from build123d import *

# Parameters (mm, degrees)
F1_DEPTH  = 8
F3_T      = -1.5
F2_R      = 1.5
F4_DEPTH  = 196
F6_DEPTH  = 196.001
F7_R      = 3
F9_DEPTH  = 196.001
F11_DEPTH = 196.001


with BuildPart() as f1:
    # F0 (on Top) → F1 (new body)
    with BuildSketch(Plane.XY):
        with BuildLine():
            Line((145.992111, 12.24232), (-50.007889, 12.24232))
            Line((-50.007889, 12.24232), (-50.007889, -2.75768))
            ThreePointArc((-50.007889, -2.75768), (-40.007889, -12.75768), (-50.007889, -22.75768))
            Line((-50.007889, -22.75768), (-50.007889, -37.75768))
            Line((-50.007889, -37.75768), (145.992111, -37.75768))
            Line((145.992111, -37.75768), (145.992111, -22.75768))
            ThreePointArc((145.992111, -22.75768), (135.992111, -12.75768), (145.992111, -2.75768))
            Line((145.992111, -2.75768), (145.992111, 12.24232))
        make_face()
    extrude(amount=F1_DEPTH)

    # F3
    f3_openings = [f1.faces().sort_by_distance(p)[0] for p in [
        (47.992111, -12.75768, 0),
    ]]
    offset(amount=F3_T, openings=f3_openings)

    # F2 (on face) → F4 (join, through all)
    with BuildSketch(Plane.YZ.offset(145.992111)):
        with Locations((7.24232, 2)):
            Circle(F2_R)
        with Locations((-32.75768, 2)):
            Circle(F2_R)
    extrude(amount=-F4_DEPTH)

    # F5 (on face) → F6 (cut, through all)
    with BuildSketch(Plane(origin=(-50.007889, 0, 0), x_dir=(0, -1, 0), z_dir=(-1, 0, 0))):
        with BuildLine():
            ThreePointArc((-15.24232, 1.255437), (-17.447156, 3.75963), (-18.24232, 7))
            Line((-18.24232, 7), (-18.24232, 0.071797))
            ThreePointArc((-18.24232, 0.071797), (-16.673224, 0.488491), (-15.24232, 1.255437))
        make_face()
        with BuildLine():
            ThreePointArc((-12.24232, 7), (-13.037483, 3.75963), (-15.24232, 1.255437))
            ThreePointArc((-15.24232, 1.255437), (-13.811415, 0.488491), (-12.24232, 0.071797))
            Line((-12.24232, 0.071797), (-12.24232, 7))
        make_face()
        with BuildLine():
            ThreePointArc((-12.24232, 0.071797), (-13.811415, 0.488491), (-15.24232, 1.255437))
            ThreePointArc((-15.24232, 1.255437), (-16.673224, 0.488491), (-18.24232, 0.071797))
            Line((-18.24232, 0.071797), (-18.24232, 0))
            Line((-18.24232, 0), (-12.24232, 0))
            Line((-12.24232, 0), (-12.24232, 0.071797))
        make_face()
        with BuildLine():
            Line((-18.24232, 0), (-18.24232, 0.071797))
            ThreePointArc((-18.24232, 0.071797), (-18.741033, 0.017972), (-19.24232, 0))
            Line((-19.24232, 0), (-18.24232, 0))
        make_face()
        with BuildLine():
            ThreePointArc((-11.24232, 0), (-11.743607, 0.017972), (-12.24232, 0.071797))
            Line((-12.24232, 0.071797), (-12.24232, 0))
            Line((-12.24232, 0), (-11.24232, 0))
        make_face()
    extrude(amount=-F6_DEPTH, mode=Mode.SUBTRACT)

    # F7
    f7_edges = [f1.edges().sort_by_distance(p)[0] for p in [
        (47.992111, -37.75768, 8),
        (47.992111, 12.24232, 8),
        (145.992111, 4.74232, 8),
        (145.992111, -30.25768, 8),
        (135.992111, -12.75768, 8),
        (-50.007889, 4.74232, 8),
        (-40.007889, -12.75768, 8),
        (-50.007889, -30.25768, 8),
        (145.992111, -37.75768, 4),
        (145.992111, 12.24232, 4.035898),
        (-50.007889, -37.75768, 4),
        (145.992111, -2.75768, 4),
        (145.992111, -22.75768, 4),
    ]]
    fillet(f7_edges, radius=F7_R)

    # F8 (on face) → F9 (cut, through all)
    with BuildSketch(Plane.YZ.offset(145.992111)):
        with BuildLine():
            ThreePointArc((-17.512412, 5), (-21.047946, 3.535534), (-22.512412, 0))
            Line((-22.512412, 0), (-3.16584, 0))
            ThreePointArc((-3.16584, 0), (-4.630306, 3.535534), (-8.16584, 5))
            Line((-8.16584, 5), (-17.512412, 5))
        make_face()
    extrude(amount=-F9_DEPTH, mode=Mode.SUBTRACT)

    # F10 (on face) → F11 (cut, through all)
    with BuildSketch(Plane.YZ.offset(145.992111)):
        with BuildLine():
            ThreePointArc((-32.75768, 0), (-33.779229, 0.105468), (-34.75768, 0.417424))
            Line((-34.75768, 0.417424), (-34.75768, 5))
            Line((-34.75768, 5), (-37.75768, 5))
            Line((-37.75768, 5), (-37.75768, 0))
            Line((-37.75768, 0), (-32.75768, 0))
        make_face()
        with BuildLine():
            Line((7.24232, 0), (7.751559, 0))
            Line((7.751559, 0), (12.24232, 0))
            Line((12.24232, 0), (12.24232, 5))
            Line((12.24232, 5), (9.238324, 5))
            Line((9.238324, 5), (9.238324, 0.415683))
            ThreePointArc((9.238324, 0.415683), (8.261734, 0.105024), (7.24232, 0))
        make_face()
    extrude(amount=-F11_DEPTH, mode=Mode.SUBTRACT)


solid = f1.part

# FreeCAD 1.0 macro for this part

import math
import FreeCAD as App
import Part
import Sketcher
from FreeCAD import Vector
Q = App.Units.Quantity


def edges_at(feature, points):
    """Names of the edges that pass closest to the given points."""
    edges = feature.Shape.Edges
    near = lambda p: min(range(len(edges)), key=lambda i: edges[i].distToShape(Part.Vertex(*p))[0])
    return sorted({f"Edge{near(p) + 1}" for p in points})


def faces_at(feature, points):
    """Names of the faces that lie closest to the given points."""
    faces = feature.Shape.Faces
    near = lambda p: min(range(len(faces)), key=lambda i: faces[i].distToShape(Part.Vertex(*p))[0])
    return sorted({f"Face{near(p) + 1}" for p in points})

doc = App.newDocument("Part")
params = doc.addObject("Spreadsheet::Sheet", "Params")
for row, (alias, value) in enumerate([
    ("sketch1_radius", "10 mm"),
    ("sketch1_width", "196 mm"),
    ("sketch1_height", "15 mm"),
    ("pad1_length", "8 mm"),
    ("thickness_wall", "1.5 mm"),
    ("sketch2_diameter", "3 mm"),
    ("pad2_length", "196 mm"),
    ("sketch3_radius", "7.000001 mm"),
    ("sketch3_width", "8 mm"),
    ("fillet_radius", "3 mm"),
    ("sketch4_radius", "5 mm"),
    ("sketch5_width", "3 mm"),
    ("sketch5_width2", "5 mm"),
], start=1):
    params.set(f"A{row}", alias)
    params.set(f"B{row}", "=" + value)
    params.setAlias(f"B{row}", alias)

body = doc.addObject("PartDesign::Body", "Body")

# Sketch on XY plane
sketch1 = body.newObject("Sketcher::SketchObject", "Sketch")
sketch1.AttachmentSupport = (doc.getObject("XY_Plane"), [""])
sketch1.MapMode = "FlatFace"
sketch1.addGeometry([
    Part.LineSegment(Vector(146, 12, 0), Vector(-50, 12, 0)),  # 0
    Part.LineSegment(Vector(-50, 12, 0), Vector(-50, -3, 0)),  # 1
    Part.ArcOfCircle(Part.Circle(Vector(-50, -13, 0), Vector(0, 0, 1), 10), math.radians(-90), math.radians(90)),  # 2
    Part.LineSegment(Vector(-50, -23, 0), Vector(-50, -38, 0)),  # 3
    Part.LineSegment(Vector(-50, -38, 0), Vector(146, -38, 0)),  # 4
    Part.LineSegment(Vector(146, -38, 0), Vector(146, -23, 0)),  # 5
    Part.ArcOfCircle(Part.Circle(Vector(146, -13, 0), Vector(0, 0, 1), 10), math.radians(90), math.radians(270)),  # 6
    Part.LineSegment(Vector(146, -3, 0), Vector(146, 12, 0)),  # 7
], False)
sketch1.addConstraint([
    Sketcher.Constraint("Coincident", 0, 2, 1, 1),
    Sketcher.Constraint("Coincident", 1, 2, 2, 2),
    Sketcher.Constraint("Coincident", 2, 1, 3, 1),
    Sketcher.Constraint("Coincident", 3, 2, 4, 1),
    Sketcher.Constraint("Coincident", 4, 2, 5, 1),
    Sketcher.Constraint("Coincident", 5, 2, 6, 2),
    Sketcher.Constraint("Coincident", 6, 1, 7, 1),
    Sketcher.Constraint("Coincident", 7, 2, 0, 1),
    Sketcher.Constraint("Horizontal", 0),
    Sketcher.Constraint("Vertical", 1),
    Sketcher.Constraint("Vertical", 3),
    Sketcher.Constraint("Horizontal", 4),
    Sketcher.Constraint("Vertical", 5),
    Sketcher.Constraint("Vertical", 7),
    Sketcher.Constraint("Equal", 2, 6),
    Sketcher.Constraint("Horizontal", 2, 3, 6, 3),
    Sketcher.Constraint("Vertical", 2, 3, 0, 2),
    Sketcher.Constraint("Vertical", 1, 2, 2, 1),
    Sketcher.Constraint("Vertical", 6, 3, 4, 2),
    Sketcher.Constraint("Vertical", 5, 2, 6, 1),
    Sketcher.Constraint("Equal", 1, 3),
    Sketcher.Constraint("Radius", 2, Q("10 mm")),
    Sketcher.Constraint("DistanceX", 0, 2, 0, 1, Q("196 mm")),
    Sketcher.Constraint("DistanceY", 1, 2, 1, 1, Q("15 mm")),
    Sketcher.Constraint("DistanceX", 2, 3, -1, 1, Q("50.007889 mm")),
    Sketcher.Constraint("DistanceY", 2, 3, -1, 1, Q("12.75768 mm")),
])
sketch1.setExpression("Constraints[21]", "Params.sketch1_radius")
sketch1.setExpression("Constraints[22]", "Params.sketch1_width")
sketch1.setExpression("Constraints[23]", "Params.sketch1_height")
pad1 = body.newObject("PartDesign::Pad", "Pad")
pad1.Profile = sketch1
pad1.setExpression("Length", "Params.pad1_length")
doc.recompute()

thickness = body.newObject("PartDesign::Thickness", "Thickness")
thickness.Base = (pad1, faces_at(pad1, [(47.992, -12.758, 0)]))
thickness.setExpression("Value", "Params.thickness_wall")
thickness.Reversed = True
thickness.Join = "Arc"

# Sketch on YZ plane
sketch2 = body.newObject("Sketcher::SketchObject", "Sketch001")
sketch2.AttachmentSupport = (doc.getObject("YZ_Plane"), [""])
sketch2.MapMode = "FlatFace"
sketch2.AttachmentOffset = App.Placement(Vector(0, 0, 145.992111), App.Rotation())
sketch2.addGeometry([
    Part.Circle(Vector(7.2, 2, 0), Vector(0, 0, 1), 1.5),
    Part.Circle(Vector(-32.8, 2, 0), Vector(0, 0, 1), 1.5),
], False)
sketch2.addConstraint([
    Sketcher.Constraint("Equal", 0, 1),
    Sketcher.Constraint("Horizontal", 0, 3, 1, 3),
    Sketcher.Constraint("Diameter", 0, Q("3 mm")),
    Sketcher.Constraint("DistanceY", -1, 1, 0, 3, Q("2 mm")),
    Sketcher.Constraint("DistanceX", 1, 3, 0, 3, Q("40 mm")),
    Sketcher.Constraint("DistanceX", -1, 1, 0, 3, Q("7.24232 mm")),
])
sketch2.setExpression("Constraints[2]", "Params.sketch2_diameter")
pad2 = body.newObject("PartDesign::Pad", "Pad001")
pad2.Profile = sketch2
pad2.setExpression("Length", "Params.pad2_length")
pad2.Reversed = True

# Sketch on YZ plane
sketch3 = body.newObject("Sketcher::SketchObject", "Sketch002")
sketch3.AttachmentSupport = (doc.getObject("YZ_Plane"), [""])
sketch3.MapMode = "FlatFace"
sketch3.AttachmentOffset = App.Placement(Vector(0, 0, -50.007889), App.Rotation())
sketch3.addGeometry([
    Part.ArcOfCircle(Part.Circle(Vector(11.2, 7, 0), Vector(0, 0, 1), 7), math.radians(-55), math.radians(0)),  # 0
    Part.LineSegment(Vector(18.2, 7, 0), Vector(18.2, 0.1, 0)),  # 1
    Part.ArcOfCircle(Part.Circle(Vector(19.2, 7, 0), Vector(0, 0, 1), 7), math.radians(-98.21), math.radians(-90)),  # 2
    Part.LineSegment(Vector(19.2, 0, 0), Vector(11.2, 0, 0)),  # 3
    Part.ArcOfCircle(Part.Circle(Vector(11.2, 7, 0), Vector(0, 0, 1), 7), math.radians(-90), math.radians(-81.79)),  # 4
    Part.LineSegment(Vector(12.2, 0.1, 0), Vector(12.2, 7, 0)),  # 5
    Part.ArcOfCircle(Part.Circle(Vector(19.2, 7, 0), Vector(0, 0, 1), 7), math.radians(-180), math.radians(-125)),  # 6
], False)
sketch3.addConstraint([
    Sketcher.Constraint("Tangent", 0, 2, 1, 1),
    Sketcher.Constraint("Coincident", 1, 2, 2, 1),
    Sketcher.Constraint("Tangent", 2, 2, 3, 1),
    Sketcher.Constraint("Tangent", 3, 2, 4, 1),
    Sketcher.Constraint("Coincident", 4, 2, 5, 1),
    Sketcher.Constraint("Tangent", 5, 2, 6, 1),
    Sketcher.Constraint("Coincident", 6, 2, 0, 1),
    Sketcher.Constraint("Vertical", 1),
    Sketcher.Constraint("Horizontal", 3),
    Sketcher.Constraint("Vertical", 5),
    Sketcher.Constraint("Equal", 2, 4),
    Sketcher.Constraint("PointOnObject", 2, 2, -1),
    Sketcher.Constraint("Horizontal", 6, 3, 0, 2),
    Sketcher.Constraint("Horizontal", 1, 2, 4, 2),
    Sketcher.Constraint("Vertical", 6, 3, 2, 2),
    Sketcher.Constraint("Radius", 6, Q("7.000001 mm")),
    Sketcher.Constraint("DistanceX", 3, 2, 3, 1, Q("8 mm")),
    Sketcher.Constraint("DistanceY", -1, 1, 6, 3, Q("7 mm")),
    Sketcher.Constraint("DistanceX", 0, 3, 2, 3, Q("7.999999 mm")),
    Sketcher.Constraint("Radius", 2, Q("6.999854 mm")),
    Sketcher.Constraint("DistanceX", -1, 1, 0, 3, Q("11.242312 mm")),
])
sketch3.setExpression("Constraints[15]", "Params.sketch3_radius")
sketch3.setExpression("Constraints[16]", "Params.sketch3_width")
pocket1 = body.newObject("PartDesign::Pocket", "Pocket")
pocket1.Profile = sketch3
pocket1.Type = "ThroughAll"
pocket1.Reversed = True
doc.recompute()

fillet = body.newObject("PartDesign::Fillet", "Fillet")
fillet.Base = (pocket1, edges_at(pocket1, [
    (47.992, -37.758, 8),
    (47.992, 12.242, 8),
    (145.992, 4.742, 8),
    (145.992, -30.258, 8),
    (135.992, -12.758, 8),
    (-50.008, 4.742, 8),
    (-40.008, -12.758, 8),
    (-50.008, -30.258, 8),
    (145.992, -37.758, 4),
    (145.992, 12.242, 4.036),
    (-50.008, -37.758, 4),
    (145.992, -2.758, 4),
    (145.992, -22.758, 4),
]))
fillet.setExpression("Radius", "Params.fillet_radius")

# Sketch on YZ plane
sketch4 = body.newObject("Sketcher::SketchObject", "Sketch003")
sketch4.AttachmentSupport = (doc.getObject("YZ_Plane"), [""])
sketch4.MapMode = "FlatFace"
sketch4.AttachmentOffset = App.Placement(Vector(0, 0, 145.992111), App.Rotation())
sketch4.addGeometry([
    Part.ArcOfCircle(Part.Circle(Vector(-17.5, 0, 0), Vector(0, 0, 1), 5), math.radians(90), math.radians(180)),
    Part.LineSegment(Vector(-22.5, 0, 0), Vector(-3.2, 0, 0)),
    Part.ArcOfCircle(Part.Circle(Vector(-8.2, 0, 0), Vector(0, 0, 1), 5), math.radians(0), math.radians(90)),
    Part.LineSegment(Vector(-8.2, 5, 0), Vector(-17.5, 5, 0)),
], False)
sketch4.addConstraint([
    Sketcher.Constraint("Coincident", 0, 2, 1, 1),
    Sketcher.Constraint("Coincident", 1, 2, 2, 1),
    Sketcher.Constraint("Tangent", 2, 2, 3, 1),
    Sketcher.Constraint("Tangent", 3, 2, 0, 1),
    Sketcher.Constraint("Horizontal", 1),
    Sketcher.Constraint("Horizontal", 3),
    Sketcher.Constraint("Equal", 0, 2),
    Sketcher.Constraint("PointOnObject", 0, 3, -1),
    Sketcher.Constraint("PointOnObject", 0, 2, -1),
    Sketcher.Constraint("Radius", 0, Q("5 mm")),
    Sketcher.Constraint("DistanceX", 1, 1, 1, 2, Q("19.346572 mm")),
    Sketcher.Constraint("DistanceX", 2, 3, -1, 1, Q("8.16584 mm")),
])
sketch4.setExpression("Constraints[9]", "Params.sketch4_radius")
pocket2 = body.newObject("PartDesign::Pocket", "Pocket001")
pocket2.Profile = sketch4
pocket2.Type = "ThroughAll"

# Sketch on YZ plane
sketch5 = body.newObject("Sketcher::SketchObject", "Sketch004")
sketch5.AttachmentSupport = (doc.getObject("YZ_Plane"), [""])
sketch5.MapMode = "FlatFace"
sketch5.AttachmentOffset = App.Placement(Vector(0, 0, 145.992111), App.Rotation())
sketch5.addGeometry([
    Part.ArcOfCircle(Part.Circle(Vector(-32.8, 5, 0), Vector(0, 0, 1), 5), math.radians(-114), math.radians(-90)),  # 0
    Part.LineSegment(Vector(-34.8, 0.4, 0), Vector(-34.8, 5, 0)),  # 1
    Part.LineSegment(Vector(-34.8, 5, 0), Vector(-37.8, 5, 0)),  # 2
    Part.LineSegment(Vector(-37.8, 5, 0), Vector(-37.8, 0, 0)),  # 3
    Part.LineSegment(Vector(-37.8, 0, 0), Vector(-32.8, 0, 0)),  # 4
    Part.LineSegment(Vector(7.2, 0, 0), Vector(12.2, 0, 0)),  # 5
    Part.LineSegment(Vector(12.2, 0, 0), Vector(12.2, 5, 0)),  # 6
    Part.LineSegment(Vector(12.2, 5, 0), Vector(9.2, 5, 0)),  # 7
    Part.LineSegment(Vector(9.2, 5, 0), Vector(9.2, 0.4, 0)),  # 8
    Part.ArcOfCircle(Part.Circle(Vector(7.2, 5, 0), Vector(0, 0, 1), 5), math.radians(-90), math.radians(-66)),  # 9
], False)
sketch5.addConstraint([
    Sketcher.Constraint("Coincident", 0, 1, 1, 1),
    Sketcher.Constraint("Coincident", 1, 2, 2, 1),
    Sketcher.Constraint("Coincident", 2, 2, 3, 1),
    Sketcher.Constraint("Coincident", 3, 2, 4, 1),
    Sketcher.Constraint("Tangent", 4, 2, 0, 2),
    Sketcher.Constraint("Coincident", 5, 2, 6, 1),
    Sketcher.Constraint("Coincident", 6, 2, 7, 1),
    Sketcher.Constraint("Coincident", 7, 2, 8, 1),
    Sketcher.Constraint("Coincident", 8, 2, 9, 2),
    Sketcher.Constraint("Tangent", 9, 1, 5, 1),
    Sketcher.Constraint("Vertical", 1),
    Sketcher.Constraint("Horizontal", 2),
    Sketcher.Constraint("Vertical", 3),
    Sketcher.Constraint("Horizontal", 4),
    Sketcher.Constraint("Horizontal", 5),
    Sketcher.Constraint("Vertical", 6),
    Sketcher.Constraint("Horizontal", 7),
    Sketcher.Constraint("Vertical", 8),
    Sketcher.Constraint("PointOnObject", 3, 2, -1),
    Sketcher.Constraint("PointOnObject", 5, 2, -1),
    Sketcher.Constraint("Horizontal", 2, 2, 6, 2),
    Sketcher.Constraint("Equal", 4, 5),
    Sketcher.Constraint("Equal", 5, 3),
    Sketcher.Constraint("DistanceX", 2, 2, 2, 1, Q("3 mm")),
    Sketcher.Constraint("DistanceX", 4, 1, 4, 2, Q("5 mm")),
    Sketcher.Constraint("DistanceX", 0, 3, 9, 3, Q("40.000001 mm")),
    Sketcher.Constraint("Radius", 0, Q("4.999979 mm")),
    Sketcher.Constraint("Radius", 9, Q("5.00001 mm")),
    Sketcher.Constraint("DistanceX", 7, 2, 7, 1, Q("3.003996 mm")),
    Sketcher.Constraint("DistanceX", 0, 1, -1, 1, Q("34.75768 mm")),
])
sketch5.setExpression("Constraints[23]", "Params.sketch5_width")
sketch5.setExpression("Constraints[24]", "Params.sketch5_width2")
pocket3 = body.newObject("PartDesign::Pocket", "Pocket002")
pocket3.Profile = sketch5
pocket3.Type = "ThroughAll"

doc.recompute()
